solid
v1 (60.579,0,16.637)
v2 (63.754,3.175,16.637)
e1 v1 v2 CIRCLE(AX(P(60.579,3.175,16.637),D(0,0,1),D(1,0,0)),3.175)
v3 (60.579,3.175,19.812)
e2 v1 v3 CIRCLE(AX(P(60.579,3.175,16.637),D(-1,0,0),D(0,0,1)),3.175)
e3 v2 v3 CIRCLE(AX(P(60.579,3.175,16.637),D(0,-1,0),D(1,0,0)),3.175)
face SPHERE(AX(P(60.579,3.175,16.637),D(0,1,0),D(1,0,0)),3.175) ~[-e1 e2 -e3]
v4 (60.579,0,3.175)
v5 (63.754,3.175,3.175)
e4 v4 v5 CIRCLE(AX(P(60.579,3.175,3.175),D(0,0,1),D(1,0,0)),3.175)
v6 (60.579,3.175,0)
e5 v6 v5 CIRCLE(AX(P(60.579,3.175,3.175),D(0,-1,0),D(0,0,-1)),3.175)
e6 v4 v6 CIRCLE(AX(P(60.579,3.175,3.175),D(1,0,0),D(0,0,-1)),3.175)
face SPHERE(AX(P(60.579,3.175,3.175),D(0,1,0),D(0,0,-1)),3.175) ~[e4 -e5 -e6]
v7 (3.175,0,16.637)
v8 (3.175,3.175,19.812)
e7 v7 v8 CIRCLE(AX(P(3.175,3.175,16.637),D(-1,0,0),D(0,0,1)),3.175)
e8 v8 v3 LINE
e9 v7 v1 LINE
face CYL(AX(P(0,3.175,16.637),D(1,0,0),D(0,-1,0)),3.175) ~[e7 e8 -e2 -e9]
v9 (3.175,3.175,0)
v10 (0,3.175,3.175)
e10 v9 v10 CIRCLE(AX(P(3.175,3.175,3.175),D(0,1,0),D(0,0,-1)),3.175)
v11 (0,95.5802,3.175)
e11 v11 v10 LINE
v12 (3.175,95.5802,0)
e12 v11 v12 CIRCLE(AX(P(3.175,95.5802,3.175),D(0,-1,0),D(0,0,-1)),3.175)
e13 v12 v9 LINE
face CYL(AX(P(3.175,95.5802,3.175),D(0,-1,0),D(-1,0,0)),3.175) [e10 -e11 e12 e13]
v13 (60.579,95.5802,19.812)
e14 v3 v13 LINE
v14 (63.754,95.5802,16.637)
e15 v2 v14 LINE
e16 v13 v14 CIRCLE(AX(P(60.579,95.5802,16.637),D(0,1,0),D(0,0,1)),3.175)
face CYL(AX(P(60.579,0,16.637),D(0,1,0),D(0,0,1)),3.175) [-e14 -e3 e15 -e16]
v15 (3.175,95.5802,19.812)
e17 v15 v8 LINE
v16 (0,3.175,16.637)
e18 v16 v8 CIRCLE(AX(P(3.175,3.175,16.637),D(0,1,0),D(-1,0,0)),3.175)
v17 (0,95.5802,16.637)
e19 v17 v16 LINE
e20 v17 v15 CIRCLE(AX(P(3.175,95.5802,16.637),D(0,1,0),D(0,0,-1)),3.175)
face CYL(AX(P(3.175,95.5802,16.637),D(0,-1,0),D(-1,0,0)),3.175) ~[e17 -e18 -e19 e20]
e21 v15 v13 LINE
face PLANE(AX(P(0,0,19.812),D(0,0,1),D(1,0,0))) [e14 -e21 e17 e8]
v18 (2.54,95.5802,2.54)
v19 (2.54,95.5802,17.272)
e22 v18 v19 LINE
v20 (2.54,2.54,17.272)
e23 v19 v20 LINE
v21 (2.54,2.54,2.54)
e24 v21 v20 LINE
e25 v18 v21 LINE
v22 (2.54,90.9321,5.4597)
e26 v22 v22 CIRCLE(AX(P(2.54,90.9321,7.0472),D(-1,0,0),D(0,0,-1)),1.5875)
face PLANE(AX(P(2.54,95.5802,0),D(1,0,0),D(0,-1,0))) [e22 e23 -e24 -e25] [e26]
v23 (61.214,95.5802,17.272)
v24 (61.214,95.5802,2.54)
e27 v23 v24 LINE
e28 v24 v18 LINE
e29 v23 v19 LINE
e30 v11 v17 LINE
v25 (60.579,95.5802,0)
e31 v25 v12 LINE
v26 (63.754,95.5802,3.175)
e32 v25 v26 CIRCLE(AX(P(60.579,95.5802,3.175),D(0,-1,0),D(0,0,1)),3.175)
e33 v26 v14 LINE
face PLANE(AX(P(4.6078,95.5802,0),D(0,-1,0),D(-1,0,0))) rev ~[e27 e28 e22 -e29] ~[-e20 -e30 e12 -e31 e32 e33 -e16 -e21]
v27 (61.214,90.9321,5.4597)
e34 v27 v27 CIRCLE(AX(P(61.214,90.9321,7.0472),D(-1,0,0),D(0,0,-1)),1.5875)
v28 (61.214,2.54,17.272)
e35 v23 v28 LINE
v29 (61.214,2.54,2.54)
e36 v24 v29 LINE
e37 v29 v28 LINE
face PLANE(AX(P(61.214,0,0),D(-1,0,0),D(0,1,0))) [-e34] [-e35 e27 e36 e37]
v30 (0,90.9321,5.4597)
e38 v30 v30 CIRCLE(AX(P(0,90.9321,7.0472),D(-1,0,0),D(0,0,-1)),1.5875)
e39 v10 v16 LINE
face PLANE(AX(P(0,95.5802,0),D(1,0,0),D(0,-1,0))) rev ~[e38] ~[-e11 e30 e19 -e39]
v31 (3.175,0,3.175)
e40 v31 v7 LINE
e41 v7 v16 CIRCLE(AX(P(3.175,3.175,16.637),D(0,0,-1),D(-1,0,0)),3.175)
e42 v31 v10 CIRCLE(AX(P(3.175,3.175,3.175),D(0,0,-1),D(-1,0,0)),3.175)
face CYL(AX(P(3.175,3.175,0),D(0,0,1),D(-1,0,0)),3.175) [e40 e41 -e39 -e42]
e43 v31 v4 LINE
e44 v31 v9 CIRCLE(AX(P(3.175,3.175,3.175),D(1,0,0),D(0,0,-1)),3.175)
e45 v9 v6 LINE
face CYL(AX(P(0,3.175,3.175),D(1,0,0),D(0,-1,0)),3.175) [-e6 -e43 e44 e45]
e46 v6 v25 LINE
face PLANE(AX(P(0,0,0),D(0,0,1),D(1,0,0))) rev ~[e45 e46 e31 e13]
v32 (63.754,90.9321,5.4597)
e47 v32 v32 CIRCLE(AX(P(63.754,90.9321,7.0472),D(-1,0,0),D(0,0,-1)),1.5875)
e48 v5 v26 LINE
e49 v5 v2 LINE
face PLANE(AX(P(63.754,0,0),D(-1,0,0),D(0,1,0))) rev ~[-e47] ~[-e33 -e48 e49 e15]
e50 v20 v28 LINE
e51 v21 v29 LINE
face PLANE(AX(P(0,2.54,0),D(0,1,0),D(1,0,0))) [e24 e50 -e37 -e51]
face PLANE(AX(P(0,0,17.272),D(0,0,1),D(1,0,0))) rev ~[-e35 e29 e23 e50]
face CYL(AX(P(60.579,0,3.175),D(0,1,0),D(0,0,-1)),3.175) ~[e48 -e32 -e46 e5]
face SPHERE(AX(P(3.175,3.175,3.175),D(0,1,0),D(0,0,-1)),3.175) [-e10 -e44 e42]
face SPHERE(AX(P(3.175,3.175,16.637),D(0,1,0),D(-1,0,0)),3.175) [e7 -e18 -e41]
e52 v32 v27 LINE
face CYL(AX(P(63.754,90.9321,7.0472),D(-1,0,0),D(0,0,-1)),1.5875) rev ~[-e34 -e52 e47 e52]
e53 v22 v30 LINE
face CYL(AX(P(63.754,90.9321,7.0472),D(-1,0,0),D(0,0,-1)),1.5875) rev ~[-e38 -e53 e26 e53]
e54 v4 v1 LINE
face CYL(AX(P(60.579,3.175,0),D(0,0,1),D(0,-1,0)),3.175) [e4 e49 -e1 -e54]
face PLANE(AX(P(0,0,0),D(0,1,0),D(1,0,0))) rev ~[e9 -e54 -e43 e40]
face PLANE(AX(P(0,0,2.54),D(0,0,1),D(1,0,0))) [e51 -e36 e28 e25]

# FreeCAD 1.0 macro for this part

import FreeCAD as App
import Part
import Sketcher
from FreeCAD import Vector
Q = App.Units.Quantity


def edges_at(feature, points):
    """Names of the edges that pass closest to the given points."""
    edges = feature.Shape.Edges
    near = lambda p: min(range(len(edges)), key=lambda i: edges[i].distToShape(Part.Vertex(*p))[0])
    return sorted({f"Edge{near(p) + 1}" for p in points})


def faces_at(feature, points):
    """Names of the faces that lie closest to the given points."""
    faces = feature.Shape.Faces
    near = lambda p: min(range(len(faces)), key=lambda i: faces[i].distToShape(Part.Vertex(*p))[0])
    return sorted({f"Face{near(p) + 1}" for p in points})


def add_polygon(sketch, points):
    """Adds a closed chain of lines whose ends are joined by coincident constraints."""
    first, n = sketch.GeometryCount, len(points)
    for a, b in zip(points, points[1:] + points[:1]):
        sketch.addGeometry(Part.LineSegment(App.Vector(*a, 0), App.Vector(*b, 0)), False)
    for i in range(n):
        sketch.addConstraint(Sketcher.Constraint("Coincident", first + i, 2, first + (i + 1) % n, 1))

doc = App.newDocument("Part")
body = doc.addObject("PartDesign::Body", "Body")

# Sketch on XY plane
sketch1 = body.newObject("Sketcher::SketchObject", "Sketch")
sketch1.AttachmentSupport = (doc.getObject("XY_Plane"), [""])
sketch1.MapMode = "FlatFace"
add_polygon(sketch1, [(0, 96), (0, 0), (64, 0), (64, 96)])  # lines 0-3
sketch1.addConstraint([
    Sketcher.Constraint("Vertical", 0),
    Sketcher.Constraint("Horizontal", 1),
    Sketcher.Constraint("Vertical", 2),
    Sketcher.Constraint("Horizontal", 3),
    Sketcher.Constraint("Coincident", 0, 2, -1, 1),
    Sketcher.Constraint("DistanceX", 1, 1, 1, 2, Q("2.51 in")),
    Sketcher.Constraint("DistanceY", 0, 2, 0, 1, Q("3.763 in")),
])
pad1 = body.newObject("PartDesign::Pad", "Pad")
pad1.Profile = sketch1
pad1.Length = Q("0.78 in")
doc.recompute()

thickness = body.newObject("PartDesign::Thickness", "Thickness")
thickness.Base = (pad1, faces_at(pad1, [(42.503, 95.58, 6.604)]))
thickness.Value = Q("0.1 in")
thickness.Reversed = True
thickness.Join = "Intersection"
doc.recompute()

fillet = body.newObject("PartDesign::Fillet", "Fillet")
fillet.Base = (thickness, edges_at(thickness, [
    (63.754, 47.79, 19.812),
    (0, 47.79, 19.812),
    (63.754, 47.79, 0),
    (0, 47.79, 0),
    (31.877, 0, 0),
    (63.754, 0, 9.906),
    (0, 0, 9.906),
    (31.877, 0, 19.812),
]))
fillet.Radius = Q("0.125 in")

# Sketch on YZ plane
sketch2 = body.newObject("Sketcher::SketchObject", "Sketch001")
sketch2.AttachmentSupport = (doc.getObject("YZ_Plane"), [""])
sketch2.MapMode = "FlatFace"
sketch2.AttachmentOffset = App.Placement(Vector(0, 0, 2.51 * 25.4), App.Rotation())
sketch2.addGeometry(Part.Circle(Vector(90.9, 7, 0), Vector(0, 0, 1), 1.6), False)
sketch2.addConstraint([
    Sketcher.Constraint("Diameter", 0, Q("0.125 in")),
    Sketcher.Constraint("DistanceX", -1, 1, 0, 3, Q("3.58 in")),
    Sketcher.Constraint("DistanceY", -1, 1, 0, 3, 7.0472),
])
doc.recompute()
hole = body.newObject("PartDesign::Hole", "Hole")
hole.Profile = sketch2
hole.ThreadType = "None"
hole.Diameter = Q("0.125 in")
hole.DepthType = "ThroughAll"

doc.recompute()
